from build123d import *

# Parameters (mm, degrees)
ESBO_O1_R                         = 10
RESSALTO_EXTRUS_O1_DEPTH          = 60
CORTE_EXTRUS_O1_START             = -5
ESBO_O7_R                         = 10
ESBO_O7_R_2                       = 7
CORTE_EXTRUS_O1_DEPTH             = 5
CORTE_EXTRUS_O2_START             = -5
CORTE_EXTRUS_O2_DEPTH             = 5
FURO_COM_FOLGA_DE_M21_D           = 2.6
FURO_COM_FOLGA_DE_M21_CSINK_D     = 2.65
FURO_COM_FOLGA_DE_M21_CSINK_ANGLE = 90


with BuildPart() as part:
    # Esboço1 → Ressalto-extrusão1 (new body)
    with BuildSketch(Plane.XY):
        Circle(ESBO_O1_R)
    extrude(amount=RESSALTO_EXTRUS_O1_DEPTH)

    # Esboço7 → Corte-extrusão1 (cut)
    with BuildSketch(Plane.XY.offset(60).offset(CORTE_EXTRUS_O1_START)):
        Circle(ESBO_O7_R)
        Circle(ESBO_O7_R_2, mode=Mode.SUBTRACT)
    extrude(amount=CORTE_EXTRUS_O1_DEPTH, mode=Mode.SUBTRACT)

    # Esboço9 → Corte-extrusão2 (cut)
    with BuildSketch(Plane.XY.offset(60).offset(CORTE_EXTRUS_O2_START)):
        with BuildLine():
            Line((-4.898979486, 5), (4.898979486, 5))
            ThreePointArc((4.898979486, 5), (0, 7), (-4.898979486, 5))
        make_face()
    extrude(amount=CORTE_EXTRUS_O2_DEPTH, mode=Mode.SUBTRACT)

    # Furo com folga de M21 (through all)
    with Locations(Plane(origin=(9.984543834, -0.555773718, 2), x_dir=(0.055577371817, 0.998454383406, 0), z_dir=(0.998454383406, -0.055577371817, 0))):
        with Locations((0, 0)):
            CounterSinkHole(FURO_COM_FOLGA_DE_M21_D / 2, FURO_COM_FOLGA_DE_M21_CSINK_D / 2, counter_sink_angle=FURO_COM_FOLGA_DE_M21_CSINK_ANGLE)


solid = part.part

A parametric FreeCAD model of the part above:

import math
import FreeCAD as App
import Part
import Sketcher

V = App.Vector

doc = App.newDocument("Part")
body = doc.addObject("PartDesign::Body", "Body")

# Sketch on XY plane
sketch1 = body.newObject("Sketcher::SketchObject", "Sketch")
sketch1.AttachmentSupport = (doc.getObject("XY_Plane"), [""])
sketch1.MapMode = "FlatFace"
sketch1.addGeometry(Part.Circle(V(0, 0, 0), V(0, 0, 1), 10), False)
sketch1.addConstraint([
    Sketcher.Constraint("Coincident", 0, 3, -1, 1),
    Sketcher.Constraint("Diameter", 0, 20.0),
])
pad1 = body.newObject("PartDesign::Pad", "Pad")
pad1.Profile = sketch1
pad1.Length = 60

# Sketch on XY plane
sketch2 = body.newObject("Sketcher::SketchObject", "Sketch001")
sketch2.AttachmentSupport = (doc.getObject("XY_Plane"), [""])
sketch2.MapMode = "FlatFace"
sketch2.AttachmentOffset = App.Placement(V(0, 0, 55), App.Rotation())
sketch2.addGeometry([
    Part.Circle(V(0, 0, 0), V(0, 0, 1), 10),
    Part.Circle(V(0, 0, 0), V(0, 0, 1), 7),
], False)
sketch2.addConstraint([
    Sketcher.Constraint("Coincident", 0, 3, -1, 1),
    Sketcher.Constraint("Coincident", 1, 3, -1, 1),
    Sketcher.Constraint("Diameter", 0, 20.0),
    Sketcher.Constraint("Diameter", 1, 14.0),
])
pocket1 = body.newObject("PartDesign::Pocket", "Pocket")
pocket1.Profile = sketch2
pocket1.Length = 5
pocket1.Reversed = True

# Sketch on XY plane
sketch3 = body.newObject("Sketcher::SketchObject", "Sketch002")
sketch3.AttachmentSupport = (doc.getObject("XY_Plane"), [""])
sketch3.MapMode = "FlatFace"
sketch3.AttachmentOffset = App.Placement(V(0, 0, 55), App.Rotation())
sketch3.addGeometry([
    Part.LineSegment(V(-5, 5, 0), V(5, 5, 0)),
    Part.ArcOfCircle(Part.Circle(V(0, 0, 0), V(0, 0, 1), 7), math.radians(46), math.radians(134)),
], False)
sketch3.addConstraint([
    Sketcher.Constraint("Coincident", 0, 1, 1, 2),
    Sketcher.Constraint("Coincident", 1, 1, 0, 2),
    Sketcher.Constraint("Horizontal", 0),
    Sketcher.Constraint("Coincident", 1, 3, -1, 1),
    Sketcher.Constraint("Radius", 1, 7.0),
    Sketcher.Constraint("DistanceY", -1, 1, 0, 1, 5.0),
])
pocket2 = body.newObject("PartDesign::Pocket", "Pocket001")
pocket2.Profile = sketch3
pocket2.Length = 5
pocket2.Reversed = True

# Sketch on an angled plane
sketch4 = body.newObject("Sketcher::SketchObject", "Sketch003")
sketch4.Placement = App.Placement(V(9.984544, -0.555774, 0), App.Rotation(V(0.055577372, 0.998454383, 0), V(0, 0, 0.999999999), V(0.998454383, -0.055577372, 0), "ZXY"))
sketch4.addGeometry(Part.Circle(V(0, 2, 0), V(0, 0, 1), 1.3), False)
sketch4.addConstraint([
    Sketcher.Constraint("PointOnObject", 0, 3, -2),
    Sketcher.Constraint("Diameter", 0, 2.6),
    Sketcher.Constraint("DistanceY", -1, 1, 0, 3, 2.0),
])
doc.recompute()
hole = body.newObject("PartDesign::Hole", "Hole")
hole.Profile = sketch4
hole.ThreadType = "None"
hole.Diameter = 2.6
hole.DepthType = "ThroughAll"
hole.HoleCutType = "Countersink"
hole.HoleCutDiameter = 2.65
hole.HoleCutCountersinkAngle = 90

doc.recompute()
